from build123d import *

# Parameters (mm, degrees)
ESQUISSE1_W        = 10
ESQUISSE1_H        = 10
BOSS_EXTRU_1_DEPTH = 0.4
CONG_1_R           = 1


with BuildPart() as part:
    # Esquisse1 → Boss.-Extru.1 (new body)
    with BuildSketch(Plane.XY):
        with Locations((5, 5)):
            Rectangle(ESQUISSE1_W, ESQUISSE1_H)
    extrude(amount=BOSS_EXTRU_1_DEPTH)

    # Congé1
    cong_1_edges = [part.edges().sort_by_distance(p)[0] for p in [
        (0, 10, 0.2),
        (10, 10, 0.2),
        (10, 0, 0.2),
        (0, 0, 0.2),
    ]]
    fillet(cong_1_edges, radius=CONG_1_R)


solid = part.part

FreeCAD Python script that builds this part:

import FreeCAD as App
import Part
import Sketcher
from FreeCAD import Vector


def edges_at(feature, points):
    """Names of the edges that pass closest to the given points."""
    edges = feature.Shape.Edges
    near = lambda p: min(range(len(edges)), key=lambda i: edges[i].distToShape(Part.Vertex(*p))[0])
    return sorted({f"Edge{near(p) + 1}" for p in points})


def add_polygon(sketch, points):
    """Adds a closed chain of lines whose ends are joined by coincident constraints."""
    first, n = sketch.GeometryCount, len(points)
    for a, b in zip(points, points[1:] + points[:1]):
        sketch.addGeometry(Part.LineSegment(App.Vector(*a, 0), App.Vector(*b, 0)), False)
    for i in range(n):
        sketch.addConstraint(Sketcher.Constraint("Coincident", first + i, 2, first + (i + 1) % n, 1))

doc = App.newDocument("Part")
body = doc.addObject("PartDesign::Body", "Body")

sketch1 = doc.addObject("Sketcher::SketchObject", "Sketch")
body.addObject(sketch1)
sketch1.AttachmentSupport = (doc.XY_Plane, [""])
sketch1.MapMode = "FlatFace"
add_polygon(sketch1, [(0, 10), (0, 0), (10, 0), (10, 10)])
sketch1.addConstraint(Sketcher.Constraint("Vertical", 0))
sketch1.addConstraint(Sketcher.Constraint("Horizontal", 1))
sketch1.addConstraint(Sketcher.Constraint("Vertical", 2))
sketch1.addConstraint(Sketcher.Constraint("Horizontal", 3))
sketch1.addConstraint(Sketcher.Constraint("Coincident", 0, 2, -1, 1))
sketch1.addConstraint(Sketcher.Constraint("Equal", 3, 0))
sketch1.addConstraint(Sketcher.Constraint("DistanceX", 1, 1, 1, 2, 10.0))
pad1 = doc.addObject("PartDesign::Pad", "Pad")
body.addObject(pad1)
pad1.Profile = sketch1
pad1.Length = 0.4
doc.recompute()

fillet = doc.addObject("PartDesign::Fillet", "Fillet")
body.addObject(fillet)
fillet.Base = (pad1, edges_at(pad1, [
    (0, 10, 0.2),
    (10, 10, 0.2),
    (10, 0, 0.2),
    (0, 0, 0.2),
]))
fillet.Radius = 1

doc.recompute()
